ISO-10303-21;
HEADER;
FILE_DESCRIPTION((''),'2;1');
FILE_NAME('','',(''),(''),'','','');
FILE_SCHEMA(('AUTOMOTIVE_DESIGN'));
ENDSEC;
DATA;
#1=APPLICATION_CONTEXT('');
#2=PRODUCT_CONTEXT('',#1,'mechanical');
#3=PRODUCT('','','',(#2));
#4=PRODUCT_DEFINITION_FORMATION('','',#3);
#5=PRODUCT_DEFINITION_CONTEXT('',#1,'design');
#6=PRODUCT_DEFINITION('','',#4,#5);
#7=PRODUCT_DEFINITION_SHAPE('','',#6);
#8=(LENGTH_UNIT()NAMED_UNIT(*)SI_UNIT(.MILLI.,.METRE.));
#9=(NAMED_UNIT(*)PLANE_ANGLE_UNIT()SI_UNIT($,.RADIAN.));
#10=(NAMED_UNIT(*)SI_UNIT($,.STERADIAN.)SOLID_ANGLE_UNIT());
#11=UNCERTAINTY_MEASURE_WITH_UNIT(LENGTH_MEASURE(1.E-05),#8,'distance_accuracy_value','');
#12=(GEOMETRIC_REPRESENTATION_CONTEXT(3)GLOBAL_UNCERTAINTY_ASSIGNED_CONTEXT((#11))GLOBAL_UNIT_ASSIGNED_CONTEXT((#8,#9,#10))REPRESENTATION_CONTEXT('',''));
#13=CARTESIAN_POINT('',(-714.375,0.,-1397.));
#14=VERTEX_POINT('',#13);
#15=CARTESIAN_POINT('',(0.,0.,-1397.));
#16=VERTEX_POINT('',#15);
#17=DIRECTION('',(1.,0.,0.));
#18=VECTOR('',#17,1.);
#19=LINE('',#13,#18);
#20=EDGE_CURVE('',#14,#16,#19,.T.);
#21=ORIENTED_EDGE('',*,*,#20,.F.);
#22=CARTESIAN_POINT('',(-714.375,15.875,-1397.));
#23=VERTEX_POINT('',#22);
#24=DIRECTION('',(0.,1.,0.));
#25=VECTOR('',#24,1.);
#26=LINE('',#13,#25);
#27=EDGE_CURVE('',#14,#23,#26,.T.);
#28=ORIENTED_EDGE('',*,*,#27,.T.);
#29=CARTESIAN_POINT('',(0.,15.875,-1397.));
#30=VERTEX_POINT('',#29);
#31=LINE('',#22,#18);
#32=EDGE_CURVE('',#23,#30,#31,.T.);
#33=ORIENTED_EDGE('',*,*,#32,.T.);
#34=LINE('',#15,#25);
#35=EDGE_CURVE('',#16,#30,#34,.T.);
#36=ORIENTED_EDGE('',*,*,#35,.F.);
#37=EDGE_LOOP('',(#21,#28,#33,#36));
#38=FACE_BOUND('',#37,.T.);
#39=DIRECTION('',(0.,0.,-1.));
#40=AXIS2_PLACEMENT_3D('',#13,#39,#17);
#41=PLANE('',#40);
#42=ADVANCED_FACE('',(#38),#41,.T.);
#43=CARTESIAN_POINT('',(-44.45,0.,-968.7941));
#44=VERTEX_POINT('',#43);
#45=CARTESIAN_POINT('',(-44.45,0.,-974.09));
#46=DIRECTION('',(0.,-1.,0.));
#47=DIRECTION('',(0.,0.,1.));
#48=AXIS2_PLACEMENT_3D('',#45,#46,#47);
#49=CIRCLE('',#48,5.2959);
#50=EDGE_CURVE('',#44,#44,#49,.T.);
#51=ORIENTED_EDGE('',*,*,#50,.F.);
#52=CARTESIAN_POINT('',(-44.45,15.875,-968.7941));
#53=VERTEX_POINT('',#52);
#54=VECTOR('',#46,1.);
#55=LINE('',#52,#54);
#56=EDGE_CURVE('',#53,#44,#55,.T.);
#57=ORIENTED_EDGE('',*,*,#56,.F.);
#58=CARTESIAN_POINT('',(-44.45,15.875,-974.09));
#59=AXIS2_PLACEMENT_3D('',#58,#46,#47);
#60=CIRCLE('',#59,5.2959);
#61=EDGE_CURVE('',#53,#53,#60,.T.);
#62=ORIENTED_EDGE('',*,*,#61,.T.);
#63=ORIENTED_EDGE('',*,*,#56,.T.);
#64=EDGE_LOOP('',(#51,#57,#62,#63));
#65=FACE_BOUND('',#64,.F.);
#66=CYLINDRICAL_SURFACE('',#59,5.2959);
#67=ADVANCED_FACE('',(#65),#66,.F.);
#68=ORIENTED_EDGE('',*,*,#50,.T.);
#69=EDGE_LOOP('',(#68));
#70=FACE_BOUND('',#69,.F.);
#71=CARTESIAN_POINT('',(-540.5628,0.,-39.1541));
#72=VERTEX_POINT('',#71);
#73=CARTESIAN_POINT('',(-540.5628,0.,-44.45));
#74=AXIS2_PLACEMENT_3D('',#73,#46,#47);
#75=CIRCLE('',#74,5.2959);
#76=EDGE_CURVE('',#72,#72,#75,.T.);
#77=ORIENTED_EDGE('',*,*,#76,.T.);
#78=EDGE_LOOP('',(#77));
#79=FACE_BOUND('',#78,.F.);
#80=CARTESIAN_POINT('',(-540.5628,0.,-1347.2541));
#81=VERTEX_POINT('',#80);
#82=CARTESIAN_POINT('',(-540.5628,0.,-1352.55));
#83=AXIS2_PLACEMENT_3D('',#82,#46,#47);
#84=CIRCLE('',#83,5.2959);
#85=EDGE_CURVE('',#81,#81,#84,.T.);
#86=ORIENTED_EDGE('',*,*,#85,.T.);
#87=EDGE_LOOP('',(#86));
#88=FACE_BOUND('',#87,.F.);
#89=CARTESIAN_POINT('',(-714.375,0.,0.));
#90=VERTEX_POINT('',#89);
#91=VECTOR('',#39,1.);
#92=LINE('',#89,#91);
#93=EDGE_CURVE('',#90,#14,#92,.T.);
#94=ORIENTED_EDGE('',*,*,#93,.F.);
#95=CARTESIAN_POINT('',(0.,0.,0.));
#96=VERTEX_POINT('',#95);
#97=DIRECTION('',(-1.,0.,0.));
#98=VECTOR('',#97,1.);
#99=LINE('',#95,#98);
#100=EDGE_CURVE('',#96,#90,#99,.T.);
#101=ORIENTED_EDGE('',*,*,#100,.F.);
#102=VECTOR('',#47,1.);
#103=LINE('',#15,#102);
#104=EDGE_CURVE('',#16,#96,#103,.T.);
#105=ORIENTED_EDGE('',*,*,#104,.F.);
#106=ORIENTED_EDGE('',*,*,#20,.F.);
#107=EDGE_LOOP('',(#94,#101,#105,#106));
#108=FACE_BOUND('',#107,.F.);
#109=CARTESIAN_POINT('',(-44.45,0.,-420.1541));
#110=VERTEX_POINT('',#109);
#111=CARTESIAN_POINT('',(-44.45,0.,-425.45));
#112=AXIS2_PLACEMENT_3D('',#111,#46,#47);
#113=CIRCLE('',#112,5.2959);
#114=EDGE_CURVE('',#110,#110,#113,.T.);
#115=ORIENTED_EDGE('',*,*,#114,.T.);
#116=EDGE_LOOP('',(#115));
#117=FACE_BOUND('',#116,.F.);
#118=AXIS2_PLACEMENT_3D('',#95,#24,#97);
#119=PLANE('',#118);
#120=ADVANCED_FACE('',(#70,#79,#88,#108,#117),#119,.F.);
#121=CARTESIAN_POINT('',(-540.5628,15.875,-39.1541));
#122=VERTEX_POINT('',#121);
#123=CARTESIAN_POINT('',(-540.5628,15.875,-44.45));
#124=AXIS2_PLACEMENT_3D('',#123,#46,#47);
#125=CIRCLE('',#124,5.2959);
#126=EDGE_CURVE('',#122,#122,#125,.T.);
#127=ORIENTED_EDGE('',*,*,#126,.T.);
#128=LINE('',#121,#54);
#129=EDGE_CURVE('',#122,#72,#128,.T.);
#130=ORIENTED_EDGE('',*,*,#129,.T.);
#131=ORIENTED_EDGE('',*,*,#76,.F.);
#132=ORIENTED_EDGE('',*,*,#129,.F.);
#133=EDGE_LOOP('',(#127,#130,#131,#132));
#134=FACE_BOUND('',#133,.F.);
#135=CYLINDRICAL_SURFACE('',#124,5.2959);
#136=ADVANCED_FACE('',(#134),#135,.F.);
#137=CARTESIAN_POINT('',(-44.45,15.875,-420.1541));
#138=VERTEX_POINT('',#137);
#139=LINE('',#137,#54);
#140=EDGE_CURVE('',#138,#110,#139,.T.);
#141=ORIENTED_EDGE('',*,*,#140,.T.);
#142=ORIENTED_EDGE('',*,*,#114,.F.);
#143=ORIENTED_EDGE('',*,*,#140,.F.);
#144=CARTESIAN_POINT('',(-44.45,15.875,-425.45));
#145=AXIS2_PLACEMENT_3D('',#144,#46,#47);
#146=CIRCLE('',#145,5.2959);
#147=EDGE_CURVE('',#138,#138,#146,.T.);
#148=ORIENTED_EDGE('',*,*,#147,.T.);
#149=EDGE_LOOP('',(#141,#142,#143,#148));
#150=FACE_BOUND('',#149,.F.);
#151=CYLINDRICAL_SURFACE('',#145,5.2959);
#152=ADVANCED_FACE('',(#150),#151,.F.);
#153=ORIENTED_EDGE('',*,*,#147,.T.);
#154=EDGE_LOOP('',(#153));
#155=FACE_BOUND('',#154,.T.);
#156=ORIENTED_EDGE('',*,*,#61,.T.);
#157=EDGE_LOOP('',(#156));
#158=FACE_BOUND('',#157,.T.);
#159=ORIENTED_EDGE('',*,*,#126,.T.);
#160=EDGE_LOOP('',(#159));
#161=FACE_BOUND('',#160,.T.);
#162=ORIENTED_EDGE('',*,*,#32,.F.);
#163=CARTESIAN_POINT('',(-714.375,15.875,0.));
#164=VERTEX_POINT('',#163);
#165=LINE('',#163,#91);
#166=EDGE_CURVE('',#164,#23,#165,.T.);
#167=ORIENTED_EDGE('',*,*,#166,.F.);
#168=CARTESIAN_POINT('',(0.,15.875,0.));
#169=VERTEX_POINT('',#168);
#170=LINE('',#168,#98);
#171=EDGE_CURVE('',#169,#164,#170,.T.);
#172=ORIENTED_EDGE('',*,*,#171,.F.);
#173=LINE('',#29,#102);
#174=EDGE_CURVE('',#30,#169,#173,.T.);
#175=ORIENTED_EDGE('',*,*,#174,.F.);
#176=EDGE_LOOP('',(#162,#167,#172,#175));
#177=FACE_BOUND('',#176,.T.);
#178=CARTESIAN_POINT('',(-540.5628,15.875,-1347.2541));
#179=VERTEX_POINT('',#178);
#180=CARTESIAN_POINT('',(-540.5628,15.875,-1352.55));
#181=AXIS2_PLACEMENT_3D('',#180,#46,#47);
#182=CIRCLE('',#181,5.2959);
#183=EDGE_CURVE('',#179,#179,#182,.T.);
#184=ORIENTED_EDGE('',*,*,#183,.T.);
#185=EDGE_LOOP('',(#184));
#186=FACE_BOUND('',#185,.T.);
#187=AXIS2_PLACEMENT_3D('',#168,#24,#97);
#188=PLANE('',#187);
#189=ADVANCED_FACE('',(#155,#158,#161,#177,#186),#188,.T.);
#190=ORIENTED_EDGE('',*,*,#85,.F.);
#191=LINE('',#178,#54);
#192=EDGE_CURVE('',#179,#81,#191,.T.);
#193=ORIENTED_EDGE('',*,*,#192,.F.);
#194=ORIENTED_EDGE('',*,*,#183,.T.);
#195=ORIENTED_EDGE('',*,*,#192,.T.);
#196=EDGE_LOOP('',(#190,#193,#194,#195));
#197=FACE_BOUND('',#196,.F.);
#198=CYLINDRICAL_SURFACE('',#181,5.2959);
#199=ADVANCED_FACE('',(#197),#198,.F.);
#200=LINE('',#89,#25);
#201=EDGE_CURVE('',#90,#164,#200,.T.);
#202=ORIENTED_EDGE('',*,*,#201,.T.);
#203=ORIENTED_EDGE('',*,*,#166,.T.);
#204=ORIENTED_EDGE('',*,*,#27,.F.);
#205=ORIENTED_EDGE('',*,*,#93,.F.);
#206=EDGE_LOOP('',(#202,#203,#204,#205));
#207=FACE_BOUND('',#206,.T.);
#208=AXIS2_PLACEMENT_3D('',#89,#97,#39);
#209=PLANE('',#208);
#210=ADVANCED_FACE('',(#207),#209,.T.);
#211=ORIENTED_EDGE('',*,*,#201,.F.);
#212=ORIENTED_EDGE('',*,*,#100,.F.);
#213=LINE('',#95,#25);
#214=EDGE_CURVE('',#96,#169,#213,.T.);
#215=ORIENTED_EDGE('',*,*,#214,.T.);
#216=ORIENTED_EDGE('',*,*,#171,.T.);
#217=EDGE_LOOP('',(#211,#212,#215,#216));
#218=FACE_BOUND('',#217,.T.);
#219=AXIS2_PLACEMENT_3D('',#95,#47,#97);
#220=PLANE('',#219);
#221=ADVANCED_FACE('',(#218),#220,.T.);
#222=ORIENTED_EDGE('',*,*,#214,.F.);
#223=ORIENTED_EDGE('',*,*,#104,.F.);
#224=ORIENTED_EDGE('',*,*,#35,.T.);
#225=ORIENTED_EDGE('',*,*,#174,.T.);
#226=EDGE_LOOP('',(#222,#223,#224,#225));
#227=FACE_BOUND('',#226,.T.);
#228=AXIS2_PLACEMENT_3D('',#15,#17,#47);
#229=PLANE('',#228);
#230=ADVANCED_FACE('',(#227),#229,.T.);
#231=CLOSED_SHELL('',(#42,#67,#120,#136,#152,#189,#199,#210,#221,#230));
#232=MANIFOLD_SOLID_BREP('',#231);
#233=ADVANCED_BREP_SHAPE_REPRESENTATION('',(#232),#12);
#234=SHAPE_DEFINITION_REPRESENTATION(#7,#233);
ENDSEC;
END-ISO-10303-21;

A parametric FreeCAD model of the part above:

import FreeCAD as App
import Part
import Sketcher

V = App.Vector
Q = App.Units.Quantity


def add_polygon(sketch, points):
    """Adds a closed chain of lines whose ends are joined by coincident constraints."""
    first, n = sketch.GeometryCount, len(points)
    for a, b in zip(points, points[1:] + points[:1]):
        sketch.addGeometry(Part.LineSegment(App.Vector(*a, 0), App.Vector(*b, 0)), False)
    for i in range(n):
        sketch.addConstraint(Sketcher.Constraint("Coincident", first + i, 2, first + (i + 1) % n, 1))

doc = App.newDocument("Part")
body = doc.addObject("PartDesign::Body", "Body")

# Sketch on XZ plane
sketch1 = body.newObject("Sketcher::SketchObject", "Sketch")
sketch1.AttachmentSupport = (doc.getObject("XZ_Plane"), [""])
sketch1.MapMode = "FlatFace"
add_polygon(sketch1, [(-714.375, 0), (0, 0), (0, -1397), (-714.375, -1397)])  # lines 0-3
sketch1.addConstraint([
    Sketcher.Constraint("Horizontal", 0),
    Sketcher.Constraint("Vertical", 1),
    Sketcher.Constraint("Horizontal", 2),
    Sketcher.Constraint("Vertical", 3),
    Sketcher.Constraint("Coincident", 0, 2, -1, 1),
    Sketcher.Constraint("DistanceY", 1, 2, 1, 1, Q("55 in")),
    Sketcher.Constraint("DistanceX", 0, 1, 0, 2, Q("28.125 in")),
])
pad1 = body.newObject("PartDesign::Pad", "Pad")
pad1.Profile = sketch1
pad1.Length = Q("0.625 in")
pad1.Reversed = True

# Sketch on XZ plane
sketch2 = body.newObject("Sketcher::SketchObject", "Sketch001")
sketch2.AttachmentSupport = (doc.getObject("XZ_Plane"), [""])
sketch2.MapMode = "FlatFace"
sketch2.AttachmentOffset = App.Placement(V(0, 0, -0.625 * 25.4), App.Rotation())
sketch2.addGeometry([
    Part.Circle(V(-540.5628, -44.45, 0), V(0, 0, 1), 5.2959),
    Part.Circle(V(-540.5628, -1352.55, 0), V(0, 0, 1), 5.2959),
    Part.Circle(V(-44.45, -974.09, 0), V(0, 0, 1), 5.2959),
    Part.Circle(V(-44.45, -425.45, 0), V(0, 0, 1), 5.2959),
], False)
sketch2.addConstraint([
    Sketcher.Constraint("Equal", 0, 1),
    Sketcher.Constraint("Equal", 1, 2),
    Sketcher.Constraint("Equal", 2, 3),
    Sketcher.Constraint("Vertical", 0, 3, 1, 3),
    Sketcher.Constraint("Vertical", 2, 3, 3, 3),
    Sketcher.Constraint("Diameter", 0, Q("0.417 in")),
    Sketcher.Constraint("DistanceY", 3, 3, 0, 3, Q("15 in")),
    Sketcher.Constraint("DistanceY", 1, 3, 0, 3, Q("51.5 in")),
    Sketcher.Constraint("DistanceY", 1, 3, 2, 3, Q("14.9 in")),
    Sketcher.Constraint("DistanceY", 0, 3, -1, 1, Q("1.75 in")),
    Sketcher.Constraint("DistanceX", 2, 3, -1, 1, Q("1.75 in")),
    Sketcher.Constraint("DistanceX", 0, 3, -1, 1, Q("21.282 in")),
])
doc.recompute()
hole = body.newObject("PartDesign::Hole", "Hole")
hole.Profile = sketch2
hole.ThreadType = "None"
hole.Diameter = Q("0.417 in")
hole.DepthType = "Dimension"
hole.Depth = Q("1.385 in")
hole.DrillPoint = "Angled"
hole.DrillPointAngle = 118
hole.Reversed = True

doc.recompute()
